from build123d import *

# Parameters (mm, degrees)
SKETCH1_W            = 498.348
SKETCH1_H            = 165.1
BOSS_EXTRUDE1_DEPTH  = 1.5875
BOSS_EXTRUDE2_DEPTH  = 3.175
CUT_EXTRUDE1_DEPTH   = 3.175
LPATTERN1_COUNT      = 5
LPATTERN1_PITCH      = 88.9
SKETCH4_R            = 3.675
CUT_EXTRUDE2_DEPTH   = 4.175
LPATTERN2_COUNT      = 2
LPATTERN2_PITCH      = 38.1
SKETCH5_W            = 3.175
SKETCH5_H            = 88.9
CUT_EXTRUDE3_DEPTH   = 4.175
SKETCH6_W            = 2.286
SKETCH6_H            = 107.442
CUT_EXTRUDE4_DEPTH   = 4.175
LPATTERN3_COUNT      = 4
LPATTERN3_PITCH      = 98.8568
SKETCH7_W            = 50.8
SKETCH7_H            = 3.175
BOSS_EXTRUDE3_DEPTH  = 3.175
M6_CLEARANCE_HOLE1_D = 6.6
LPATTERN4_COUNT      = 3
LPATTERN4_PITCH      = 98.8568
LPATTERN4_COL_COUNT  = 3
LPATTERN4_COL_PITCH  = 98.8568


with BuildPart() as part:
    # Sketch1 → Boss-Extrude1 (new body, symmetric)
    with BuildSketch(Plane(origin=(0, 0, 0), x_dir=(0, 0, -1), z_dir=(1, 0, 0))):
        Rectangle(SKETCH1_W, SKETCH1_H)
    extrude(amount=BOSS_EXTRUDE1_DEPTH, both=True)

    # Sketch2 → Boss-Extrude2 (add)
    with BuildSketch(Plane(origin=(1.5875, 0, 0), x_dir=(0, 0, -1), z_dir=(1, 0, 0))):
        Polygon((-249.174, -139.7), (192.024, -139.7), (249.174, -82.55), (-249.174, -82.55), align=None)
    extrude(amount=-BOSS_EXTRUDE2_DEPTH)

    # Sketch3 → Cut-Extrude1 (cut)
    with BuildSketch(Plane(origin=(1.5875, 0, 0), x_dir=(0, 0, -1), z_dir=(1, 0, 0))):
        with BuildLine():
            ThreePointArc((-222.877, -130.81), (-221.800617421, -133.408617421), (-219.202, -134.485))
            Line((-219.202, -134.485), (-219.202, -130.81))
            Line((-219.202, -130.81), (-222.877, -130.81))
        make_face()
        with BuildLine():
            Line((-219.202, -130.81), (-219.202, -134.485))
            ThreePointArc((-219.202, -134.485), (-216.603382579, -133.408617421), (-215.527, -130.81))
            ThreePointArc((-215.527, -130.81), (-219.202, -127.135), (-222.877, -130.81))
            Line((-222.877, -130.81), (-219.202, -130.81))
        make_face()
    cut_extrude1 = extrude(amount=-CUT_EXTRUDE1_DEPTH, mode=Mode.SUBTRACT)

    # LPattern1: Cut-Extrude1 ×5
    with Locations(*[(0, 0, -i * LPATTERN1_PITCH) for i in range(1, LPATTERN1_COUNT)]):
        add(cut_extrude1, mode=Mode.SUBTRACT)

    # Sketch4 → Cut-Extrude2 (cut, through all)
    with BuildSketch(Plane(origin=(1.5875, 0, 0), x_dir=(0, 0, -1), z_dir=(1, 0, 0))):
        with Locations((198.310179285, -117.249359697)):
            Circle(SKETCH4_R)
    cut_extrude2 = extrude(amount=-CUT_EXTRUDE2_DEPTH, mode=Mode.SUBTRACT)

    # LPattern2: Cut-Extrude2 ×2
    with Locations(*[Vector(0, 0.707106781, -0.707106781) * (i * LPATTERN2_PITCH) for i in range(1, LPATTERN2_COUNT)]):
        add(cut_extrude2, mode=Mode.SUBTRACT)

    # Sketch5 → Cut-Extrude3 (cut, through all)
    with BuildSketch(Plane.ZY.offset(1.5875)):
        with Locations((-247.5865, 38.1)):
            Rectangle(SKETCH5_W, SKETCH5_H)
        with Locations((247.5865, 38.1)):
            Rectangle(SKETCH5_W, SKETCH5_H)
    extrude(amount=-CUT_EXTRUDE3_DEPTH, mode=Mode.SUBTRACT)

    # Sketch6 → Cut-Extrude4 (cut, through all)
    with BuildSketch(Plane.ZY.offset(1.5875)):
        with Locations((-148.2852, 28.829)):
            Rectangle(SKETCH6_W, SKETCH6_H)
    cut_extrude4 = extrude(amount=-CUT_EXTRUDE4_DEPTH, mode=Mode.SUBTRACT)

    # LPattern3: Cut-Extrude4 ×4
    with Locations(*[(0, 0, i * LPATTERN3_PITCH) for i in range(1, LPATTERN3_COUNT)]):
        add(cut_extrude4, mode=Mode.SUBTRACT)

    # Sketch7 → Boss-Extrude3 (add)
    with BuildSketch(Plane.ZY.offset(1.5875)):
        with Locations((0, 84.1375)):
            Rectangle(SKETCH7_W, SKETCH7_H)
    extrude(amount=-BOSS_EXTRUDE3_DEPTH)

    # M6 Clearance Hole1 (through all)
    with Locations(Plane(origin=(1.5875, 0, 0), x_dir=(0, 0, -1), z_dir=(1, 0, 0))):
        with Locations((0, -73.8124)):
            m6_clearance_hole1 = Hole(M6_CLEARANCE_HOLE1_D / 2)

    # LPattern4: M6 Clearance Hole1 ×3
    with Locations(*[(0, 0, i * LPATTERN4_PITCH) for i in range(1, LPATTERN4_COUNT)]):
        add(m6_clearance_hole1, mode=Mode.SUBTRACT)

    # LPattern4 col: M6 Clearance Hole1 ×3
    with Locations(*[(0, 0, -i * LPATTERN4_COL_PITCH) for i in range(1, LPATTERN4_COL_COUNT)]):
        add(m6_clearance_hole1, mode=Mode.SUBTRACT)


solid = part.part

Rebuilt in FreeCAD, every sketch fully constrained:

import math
import FreeCAD as App
import Part
import Sketcher

V = App.Vector
Q = App.Units.Quantity


def add_polygon(sketch, points):
    """Adds a closed chain of lines whose ends are joined by coincident constraints."""
    first, n = sketch.GeometryCount, len(points)
    for a, b in zip(points, points[1:] + points[:1]):
        sketch.addGeometry(Part.LineSegment(App.Vector(*a, 0), App.Vector(*b, 0)), False)
    for i in range(n):
        sketch.addConstraint(Sketcher.Constraint("Coincident", first + i, 2, first + (i + 1) % n, 1))

doc = App.newDocument("Part")
body = doc.addObject("PartDesign::Body", "Body")

# Sketch on YZ plane
sketch1 = body.newObject("Sketcher::SketchObject", "Sketch")
sketch1.AttachmentSupport = (doc.getObject("YZ_Plane"), [""])
sketch1.MapMode = "FlatFace"
add_polygon(sketch1, [(83, 249), (-83, 249), (-83, -249), (83, -249)])  # lines 0-3
sketch1.addConstraint(Sketcher.Constraint("Horizontal", 0))
sketch1.addConstraint(Sketcher.Constraint("Vertical", 1))
sketch1.addConstraint(Sketcher.Constraint("Horizontal", 2))
sketch1.addConstraint(Sketcher.Constraint("Vertical", 3))
sketch1.addConstraint(Sketcher.Constraint("Symmetric", 0, 2, 2, 2, -1, 1))
sketch1.addConstraint(Sketcher.Constraint("DistanceX", 0, 2, 0, 1, Q("6.5 in")))
sketch1.addConstraint(Sketcher.Constraint("DistanceY", 1, 2, 1, 1, Q("19.62 in")))
pad1 = body.newObject("PartDesign::Pad", "Pad")
pad1.Profile = sketch1
pad1.Length = Q("0.125 in")
pad1.Midplane = True

# Sketch on YZ plane
sketch2 = body.newObject("Sketcher::SketchObject", "Sketch001")
sketch2.AttachmentSupport = (doc.getObject("YZ_Plane"), [""])
sketch2.MapMode = "FlatFace"
sketch2.AttachmentOffset = App.Placement(V(0, 0, 0.0625 * 25.4), App.Rotation())
add_polygon(sketch2, [(-140, 249), (-140, -192), (-83, -249), (-83, 249)])  # lines 0-3
sketch2.addConstraint(Sketcher.Constraint("Vertical", 0))
sketch2.addConstraint(Sketcher.Constraint("Vertical", 2))
sketch2.addConstraint(Sketcher.Constraint("Horizontal", 3))
sketch2.addConstraint(Sketcher.Constraint("Angle", 1, Q("-45 deg")))
sketch2.addConstraint(Sketcher.Constraint("DistanceX", 3, 2, 3, 1, Q("2.25 in")))
sketch2.addConstraint(Sketcher.Constraint("DistanceY", 0, 2, 0, 1, Q("17.37 in")))
sketch2.addConstraint(Sketcher.Constraint("DistanceX", 0, 2, -1, 1, Q("5.5 in")))
sketch2.addConstraint(Sketcher.Constraint("DistanceY", 0, 2, -1, 1, Q("7.56 in")))
pad2 = body.newObject("PartDesign::Pad", "Pad001")
pad2.Profile = sketch2
pad2.Length = Q("0.125 in")
pad2.Reversed = True

# Sketch on YZ plane
sketch3 = body.newObject("Sketcher::SketchObject", "Sketch002")
sketch3.AttachmentSupport = (doc.getObject("YZ_Plane"), [""])
sketch3.MapMode = "FlatFace"
sketch3.AttachmentOffset = App.Placement(V(0, 0, 0.0625 * 25.4), App.Rotation())
sketch3.addGeometry(Part.ArcOfCircle(Part.Circle(V(-130.8, 219.2, 0), V(0, 0, 1), 3.7), math.radians(90), math.radians(180)), False)
sketch3.addGeometry(Part.ArcOfCircle(Part.Circle(V(-130.8, 219.2, 0), V(0, 0, 1), 3.7), math.radians(180), math.radians(270)), False)
sketch3.addGeometry(Part.ArcOfCircle(Part.Circle(V(-130.8, 219.2, 0), V(0, 0, 1), 3.7), math.radians(-90), math.radians(90)), False)
sketch3.addConstraint(Sketcher.Constraint("Tangent", 0, 2, 1, 1))
sketch3.addConstraint(Sketcher.Constraint("Tangent", 1, 2, 2, 1))
sketch3.addConstraint(Sketcher.Constraint("Tangent", 2, 2, 0, 1))
sketch3.addConstraint(Sketcher.Constraint("Horizontal", 2, 3, 0, 2))
sketch3.addConstraint(Sketcher.Constraint("Vertical", 2, 3, 1, 2))
sketch3.addConstraint(Sketcher.Constraint("Vertical", 1, 2, 2, 2))
sketch3.addConstraint(Sketcher.Constraint("DistanceX", 0, 3, -1, 1, Q("5.15 in")))
sketch3.addConstraint(Sketcher.Constraint("DistanceY", -1, 1, 0, 3, Q("8.63 in")))
sketch3.addConstraint(Sketcher.Constraint("Radius", 0, 3.675))
pocket1 = body.newObject("PartDesign::Pocket", "Pocket")
pocket1.Profile = sketch3
pocket1.Length = Q("0.125 in")
doc.recompute()

linearpattern = body.newObject("PartDesign::LinearPattern", "LinearPattern")
linearpattern.Originals = [pocket1]
linearpattern.Direction = (doc.getObject("Z_Axis"), [""])
linearpattern.Mode = "offset"
linearpattern.Offset = Q("3.5 in")
linearpattern.Occurrences = 5
linearpattern.Reversed = True
body.Tip = linearpattern

# Sketch on YZ plane
sketch4 = body.newObject("Sketcher::SketchObject", "Sketch003")
sketch4.AttachmentSupport = (doc.getObject("YZ_Plane"), [""])
sketch4.MapMode = "FlatFace"
sketch4.AttachmentOffset = App.Placement(V(0, 0, 0.0625 * 25.4), App.Rotation())
sketch4.addGeometry(Part.Circle(V(-117.2, -198.3, 0), V(0, 0, 1), 3.7), False)
sketch4.addConstraint(Sketcher.Constraint("Diameter", 0, 7.35))
sketch4.addConstraint(Sketcher.Constraint("DistanceX", 0, 3, -1, 1, 117.24936))
sketch4.addConstraint(Sketcher.Constraint("DistanceY", 0, 3, -1, 1, 198.310179))
pocket2 = body.newObject("PartDesign::Pocket", "Pocket001")
pocket2.Profile = sketch4
pocket2.Type = "ThroughAll"
doc.recompute()

datumline = body.newObject("PartDesign::Line", "DatumLine")
datumline.Placement = App.Placement(V(0, 0, 0), App.Rotation(V(0, 0, 1), V(0, 0.707106781, -0.707106781)))
linearpattern2 = body.newObject("PartDesign::LinearPattern", "LinearPattern001")
linearpattern2.Originals = [pocket2]
linearpattern2.Direction = (datumline, [""])
linearpattern2.Mode = "offset"
linearpattern2.Offset = Q("1.5 in")
linearpattern2.Occurrences = 2
body.Tip = linearpattern2

# Sketch on YZ plane
sketch5 = body.newObject("Sketcher::SketchObject", "Sketch004")
sketch5.AttachmentSupport = (doc.getObject("YZ_Plane"), [""])
sketch5.MapMode = "FlatFace"
sketch5.AttachmentOffset = App.Placement(V(0, 0, -0.0625 * 25.4), App.Rotation())
add_polygon(sketch5, [(82.5, -249.2), (-6.3, -249.2), (-6.3, -246), (82.5, -246)])  # lines 0-3
add_polygon(sketch5, [(82.5, 246), (-6.3, 246), (-6.3, 249.2), (82.5, 249.2)])  # lines 4-7
sketch5.addConstraint(Sketcher.Constraint("Horizontal", 0))
sketch5.addConstraint(Sketcher.Constraint("Vertical", 1))
sketch5.addConstraint(Sketcher.Constraint("Horizontal", 2))
sketch5.addConstraint(Sketcher.Constraint("Vertical", 3))
sketch5.addConstraint(Sketcher.Constraint("Horizontal", 4))
sketch5.addConstraint(Sketcher.Constraint("Vertical", 5))
sketch5.addConstraint(Sketcher.Constraint("Horizontal", 6))
sketch5.addConstraint(Sketcher.Constraint("Vertical", 7))
sketch5.addConstraint(Sketcher.Constraint("Symmetric", 1, 2, 4, 2, -1))
sketch5.addConstraint(Sketcher.Constraint("Symmetric", 3, 2, 6, 2, -1))
sketch5.addConstraint(Sketcher.Constraint("DistanceX", 0, 2, 0, 1, Q("3.5 in")))
sketch5.addConstraint(Sketcher.Constraint("DistanceY", 1, 1, 1, 2, Q("0.125 in")))
sketch5.addConstraint(Sketcher.Constraint("DistanceX", 0, 2, -1, 1, Q("0.25 in")))
sketch5.addConstraint(Sketcher.Constraint("DistanceY", 0, 2, -1, 1, Q("9.81 in")))
pocket3 = body.newObject("PartDesign::Pocket", "Pocket002")
pocket3.Profile = sketch5
pocket3.Type = "ThroughAll"
pocket3.Reversed = True

# Sketch on YZ plane
sketch6 = body.newObject("Sketcher::SketchObject", "Sketch005")
sketch6.AttachmentSupport = (doc.getObject("YZ_Plane"), [""])
sketch6.MapMode = "FlatFace"
sketch6.AttachmentOffset = App.Placement(V(0, 0, -0.0625 * 25.4), App.Rotation())
add_polygon(sketch6, [(82.5, -149.4), (-24.9, -149.4), (-24.9, -147.1), (82.5, -147.1)])  # lines 0-3
sketch6.addConstraint(Sketcher.Constraint("Horizontal", 0))
sketch6.addConstraint(Sketcher.Constraint("Vertical", 1))
sketch6.addConstraint(Sketcher.Constraint("Horizontal", 2))
sketch6.addConstraint(Sketcher.Constraint("Vertical", 3))
sketch6.addConstraint(Sketcher.Constraint("DistanceX", 0, 2, 0, 1, Q("4.23 in")))
sketch6.addConstraint(Sketcher.Constraint("DistanceY", 1, 1, 1, 2, Q("0.09 in")))
sketch6.addConstraint(Sketcher.Constraint("DistanceX", 0, 2, -1, 1, Q("0.98 in")))
sketch6.addConstraint(Sketcher.Constraint("DistanceY", 0, 2, -1, 1, Q("5.883 in")))
pocket4 = body.newObject("PartDesign::Pocket", "Pocket003")
pocket4.Profile = sketch6
pocket4.Type = "ThroughAll"
pocket4.Reversed = True
doc.recompute()

linearpattern3 = body.newObject("PartDesign::LinearPattern", "LinearPattern002")
linearpattern3.Originals = [pocket4]
linearpattern3.Direction = (doc.getObject("Z_Axis"), [""])
linearpattern3.Mode = "offset"
linearpattern3.Offset = Q("3.892 in")
linearpattern3.Occurrences = 4
body.Tip = linearpattern3

# Sketch on YZ plane
sketch7 = body.newObject("Sketcher::SketchObject", "Sketch006")
sketch7.AttachmentSupport = (doc.getObject("YZ_Plane"), [""])
sketch7.MapMode = "FlatFace"
sketch7.AttachmentOffset = App.Placement(V(0, 0, -0.0625 * 25.4), App.Rotation())
add_polygon(sketch7, [(85.7, -25.4), (82.5, -25.4), (82.5, 25.4), (85.7, 25.4)])  # lines 0-3
sketch7.addConstraint(Sketcher.Constraint("Horizontal", 0))
sketch7.addConstraint(Sketcher.Constraint("Vertical", 1))
sketch7.addConstraint(Sketcher.Constraint("Horizontal", 2))
sketch7.addConstraint(Sketcher.Constraint("Vertical", 3))
sketch7.addConstraint(Sketcher.Constraint("DistanceY", 1, 1, 1, 2, Q("2 in")))
sketch7.addConstraint(Sketcher.Constraint("DistanceY", 0, 2, -1, 1, Q("1 in")))
sketch7.addConstraint(Sketcher.Constraint("DistanceX", 0, 2, 0, 1, Q("0.125 in")))
sketch7.addConstraint(Sketcher.Constraint("DistanceX", -1, 1, 0, 2, Q("3.25 in")))
pad3 = body.newObject("PartDesign::Pad", "Pad002")
pad3.Profile = sketch7
pad3.Length = Q("0.125 in")

# Sketch on YZ plane
sketch8 = body.newObject("Sketcher::SketchObject", "Sketch007")
sketch8.AttachmentSupport = (doc.getObject("YZ_Plane"), [""])
sketch8.MapMode = "FlatFace"
sketch8.AttachmentOffset = App.Placement(V(0, 0, 0.0625 * 25.4), App.Rotation())
sketch8.addGeometry(Part.Circle(V(-73.8, 0, 0), V(0, 0, 1), 3.3), False)
sketch8.addConstraint(Sketcher.Constraint("PointOnObject", 0, 3, -1))
sketch8.addConstraint(Sketcher.Constraint("Diameter", 0, 6.6))
sketch8.addConstraint(Sketcher.Constraint("DistanceX", 0, 3, -1, 1, Q("2.906 in")))
doc.recompute()
hole = body.newObject("PartDesign::Hole", "Hole")
hole.Profile = sketch8
hole.ThreadType = "None"
hole.Diameter = 6.6
hole.DepthType = "ThroughAll"
doc.recompute()

linearpattern4 = body.newObject("PartDesign::LinearPattern", "LinearPattern003")
linearpattern4.Originals = [hole]
linearpattern4.Direction = (doc.getObject("Z_Axis"), [""])
linearpattern4.Mode = "offset"
linearpattern4.Offset = Q("3.892 in")
linearpattern4.Occurrences = 3
body.Tip = linearpattern4
doc.recompute()

linearpattern5 = body.newObject("PartDesign::LinearPattern", "LinearPattern004")
linearpattern5.Originals = [hole]
linearpattern5.Direction = (doc.getObject("Z_Axis"), [""])
linearpattern5.Mode = "offset"
linearpattern5.Offset = Q("3.892 in")
linearpattern5.Occurrences = 3
linearpattern5.Reversed = True
body.Tip = linearpattern5

doc.recompute()
